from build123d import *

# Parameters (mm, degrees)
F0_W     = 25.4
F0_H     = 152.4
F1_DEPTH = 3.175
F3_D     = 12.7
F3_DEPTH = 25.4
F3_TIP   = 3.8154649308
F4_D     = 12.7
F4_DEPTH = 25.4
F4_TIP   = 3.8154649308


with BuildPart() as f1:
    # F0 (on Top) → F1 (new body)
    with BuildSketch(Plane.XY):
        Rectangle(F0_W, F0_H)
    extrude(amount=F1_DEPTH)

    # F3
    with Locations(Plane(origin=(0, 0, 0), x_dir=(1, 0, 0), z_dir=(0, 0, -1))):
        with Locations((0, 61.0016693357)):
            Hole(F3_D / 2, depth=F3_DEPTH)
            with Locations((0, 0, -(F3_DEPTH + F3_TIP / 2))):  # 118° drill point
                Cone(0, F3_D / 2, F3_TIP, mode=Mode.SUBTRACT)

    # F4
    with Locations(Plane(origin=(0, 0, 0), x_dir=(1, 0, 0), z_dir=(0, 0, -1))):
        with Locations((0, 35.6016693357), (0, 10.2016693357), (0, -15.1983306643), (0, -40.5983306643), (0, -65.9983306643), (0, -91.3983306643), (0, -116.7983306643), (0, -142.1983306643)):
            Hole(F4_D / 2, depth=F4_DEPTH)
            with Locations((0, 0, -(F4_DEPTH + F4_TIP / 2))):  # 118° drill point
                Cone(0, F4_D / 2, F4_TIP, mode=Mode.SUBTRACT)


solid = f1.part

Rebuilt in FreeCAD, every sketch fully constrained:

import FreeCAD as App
import Part
import Sketcher

V = App.Vector
Q = App.Units.Quantity


def add_polygon(sketch, points):
    """Adds a closed chain of lines whose ends are joined by coincident constraints."""
    first, n = sketch.GeometryCount, len(points)
    for a, b in zip(points, points[1:] + points[:1]):
        sketch.addGeometry(Part.LineSegment(App.Vector(*a, 0), App.Vector(*b, 0)), False)
    for i in range(n):
        sketch.addConstraint(Sketcher.Constraint("Coincident", first + i, 2, first + (i + 1) % n, 1))

doc = App.newDocument("Part")
params = doc.addObject("Spreadsheet::Sheet", "Params")
for row, (alias, value) in enumerate([
    ("sketch1_width", "1 in"),
    ("sketch1_height", "6 in"),
    ("pad1_length", "0.125 in"),
    ("sketch2_diameter", "0.5 in"),
    ("hole_diameter", "0.5 in"),
    ("hole_depth", "1 in"),
    ("sketch3_diameter", "0.5 in"),
    ("hole2_diameter", "0.5 in"),
    ("hole2_depth", "1 in"),
], start=1):
    params.set(f"A{row}", alias)
    params.set(f"B{row}", "=" + value)
    params.setAlias(f"B{row}", alias)

body = doc.addObject("PartDesign::Body", "Body")

sketch1 = body.newObject("Sketcher::SketchObject", "Sketch")
sketch1.AttachmentSupport = (doc.getObject("XY_Plane"), [""])
sketch1.MapMode = "FlatFace"
add_polygon(sketch1, [(-13, 76), (-13, -76), (13, -76), (13, 76)])
sketch1.addConstraint(Sketcher.Constraint("Vertical", 0))
sketch1.addConstraint(Sketcher.Constraint("Horizontal", 1))
sketch1.addConstraint(Sketcher.Constraint("Vertical", 2))
sketch1.addConstraint(Sketcher.Constraint("Horizontal", 3))
sketch1.addConstraint(Sketcher.Constraint("Symmetric", 0, 2, 2, 2, -1, 1))
sketch1.addConstraint(Sketcher.Constraint("DistanceX", 1, 1, 1, 2, Q("1 in")))
sketch1.addConstraint(Sketcher.Constraint("DistanceY", 0, 2, 0, 1, Q("6 in")))
sketch1.setExpression("Constraints[9]", "Params.sketch1_width")
sketch1.setExpression("Constraints[10]", "Params.sketch1_height")
pad1 = body.newObject("PartDesign::Pad", "Pad")
pad1.Profile = sketch1
pad1.setExpression("Length", "Params.pad1_length")

sketch2 = body.newObject("Sketcher::SketchObject", "Sketch001")
sketch2.AttachmentSupport = (doc.getObject("XY_Plane"), [""])
sketch2.MapMode = "FlatFace"
sketch2.addGeometry(Part.Circle(V(0, -61, 0), V(0, 0, 1), 6), False)
sketch2.addConstraint(Sketcher.Constraint("PointOnObject", 0, 3, -2))
sketch2.addConstraint(Sketcher.Constraint("Diameter", 0, Q("0.5 in")))
sketch2.addConstraint(Sketcher.Constraint("DistanceY", 0, 3, -1, 1, Q("61.001669 mm")))
sketch2.setExpression("Constraints[1]", "Params.sketch2_diameter")
doc.recompute()
hole = body.newObject("PartDesign::Hole", "Hole")
hole.Profile = sketch2
hole.ThreadType = "None"
hole.setExpression("Diameter", "Params.hole_diameter")
hole.DepthType = "Dimension"
hole.setExpression("Depth", "Params.hole_depth")
hole.DrillPoint = "Angled"
hole.DrillPointAngle = 118
hole.Reversed = True

sketch3 = body.newObject("Sketcher::SketchObject", "Sketch002")
sketch3.AttachmentSupport = (doc.getObject("XY_Plane"), [""])
sketch3.MapMode = "FlatFace"
sketch3.addGeometry(Part.Circle(V(0, -36, 0), V(0, 0, 1), 6), False)
sketch3.addGeometry(Part.Circle(V(0, -10, 0), V(0, 0, 1), 6), False)
sketch3.addGeometry(Part.Circle(V(0, 15, 0), V(0, 0, 1), 6), False)
sketch3.addGeometry(Part.Circle(V(0, 41, 0), V(0, 0, 1), 6), False)
sketch3.addGeometry(Part.Circle(V(0, 66, 0), V(0, 0, 1), 6), False)
sketch3.addGeometry(Part.Circle(V(0, 91, 0), V(0, 0, 1), 6), False)
sketch3.addGeometry(Part.Circle(V(0, 117, 0), V(0, 0, 1), 6), False)
sketch3.addGeometry(Part.Circle(V(0, 142, 0), V(0, 0, 1), 6), False)
sketch3.addConstraint(Sketcher.Constraint("Equal", 0, 1))
sketch3.addConstraint(Sketcher.Constraint("Equal", 1, 2))
sketch3.addConstraint(Sketcher.Constraint("Equal", 2, 3))
sketch3.addConstraint(Sketcher.Constraint("Equal", 3, 4))
sketch3.addConstraint(Sketcher.Constraint("Equal", 4, 5))
sketch3.addConstraint(Sketcher.Constraint("Equal", 5, 6))
sketch3.addConstraint(Sketcher.Constraint("Equal", 6, 7))
sketch3.addConstraint(Sketcher.Constraint("PointOnObject", 0, 3, -2))
sketch3.addConstraint(Sketcher.Constraint("PointOnObject", 1, 3, -2))
sketch3.addConstraint(Sketcher.Constraint("PointOnObject", 2, 3, -2))
sketch3.addConstraint(Sketcher.Constraint("PointOnObject", 3, 3, -2))
sketch3.addConstraint(Sketcher.Constraint("PointOnObject", 4, 3, -2))
sketch3.addConstraint(Sketcher.Constraint("PointOnObject", 5, 3, -2))
sketch3.addConstraint(Sketcher.Constraint("PointOnObject", 6, 3, -2))
sketch3.addConstraint(Sketcher.Constraint("PointOnObject", 7, 3, -2))
sketch3.addConstraint(Sketcher.Constraint("Diameter", 0, Q("0.5 in")))
sketch3.addConstraint(Sketcher.Constraint("DistanceY", 0, 3, 1, 3, Q("1 in")))
sketch3.addConstraint(Sketcher.Constraint("DistanceY", 1, 3, 2, 3, Q("1 in")))
sketch3.addConstraint(Sketcher.Constraint("DistanceY", 2, 3, 3, 3, Q("1 in")))
sketch3.addConstraint(Sketcher.Constraint("DistanceY", 3, 3, 4, 3, Q("1 in")))
sketch3.addConstraint(Sketcher.Constraint("DistanceY", 4, 3, 5, 3, Q("1 in")))
sketch3.addConstraint(Sketcher.Constraint("DistanceY", 5, 3, 6, 3, Q("1 in")))
sketch3.addConstraint(Sketcher.Constraint("DistanceY", 6, 3, 7, 3, Q("1 in")))
sketch3.addConstraint(Sketcher.Constraint("DistanceY", 0, 3, -1, 1, Q("35.601669 mm")))
sketch3.setExpression("Constraints[15]", "Params.sketch3_diameter")
doc.recompute()
hole2 = body.newObject("PartDesign::Hole", "Hole001")
hole2.Profile = sketch3
hole2.ThreadType = "None"
hole2.setExpression("Diameter", "Params.hole2_diameter")
hole2.DepthType = "Dimension"
hole2.setExpression("Depth", "Params.hole2_depth")
hole2.DrillPoint = "Angled"
hole2.DrillPointAngle = 118
hole2.Reversed = True

doc.recompute()
